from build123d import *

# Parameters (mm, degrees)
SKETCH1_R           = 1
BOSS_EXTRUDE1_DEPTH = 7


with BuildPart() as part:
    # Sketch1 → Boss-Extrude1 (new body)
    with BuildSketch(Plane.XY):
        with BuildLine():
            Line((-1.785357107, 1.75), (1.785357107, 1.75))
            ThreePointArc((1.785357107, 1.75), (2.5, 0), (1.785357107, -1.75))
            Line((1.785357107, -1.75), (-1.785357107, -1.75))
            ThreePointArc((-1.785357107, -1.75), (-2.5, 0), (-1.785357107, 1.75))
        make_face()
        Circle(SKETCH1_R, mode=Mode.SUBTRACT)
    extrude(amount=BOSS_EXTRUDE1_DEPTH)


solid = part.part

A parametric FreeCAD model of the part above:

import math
import FreeCAD as App
import Part
import Sketcher
from FreeCAD import Vector

doc = App.newDocument("Part")
body = doc.addObject("PartDesign::Body", "Body")

# Sketch on XY plane
sketch1 = doc.addObject("Sketcher::SketchObject", "Sketch")
body.addObject(sketch1)
sketch1.AttachmentSupport = (doc.XY_Plane, [""])
sketch1.MapMode = "FlatFace"
sketch1.addGeometry([
    Part.LineSegment(Vector(1.8, 1.8, 0), Vector(-1.8, 1.8, 0)),  # 0
    Part.ArcOfCircle(Part.Circle(Vector(0, 0, 0), Vector(0, 0, 1), 2.5), math.radians(136), math.radians(224)),  # 1
    Part.LineSegment(Vector(-1.8, -1.8, 0), Vector(1.8, -1.8, 0)),  # 2
    Part.ArcOfCircle(Part.Circle(Vector(0, 0, 0), Vector(0, 0, 1), 2.5), math.radians(-44), math.radians(44)),  # 3
    Part.Circle(Vector(0, 0, 0), Vector(0, 0, 1), 1),  # 4
], False)
sketch1.addConstraint([
    Sketcher.Constraint("Coincident", 0, 2, 1, 1),
    Sketcher.Constraint("Coincident", 1, 2, 2, 1),
    Sketcher.Constraint("Coincident", 2, 2, 3, 1),
    Sketcher.Constraint("Coincident", 3, 2, 0, 1),
    Sketcher.Constraint("Horizontal", 0),
    Sketcher.Constraint("Horizontal", 2),
    Sketcher.Constraint("Coincident", 1, 3, -1, 1),
    Sketcher.Constraint("Coincident", 3, 3, -1, 1),
    Sketcher.Constraint("Coincident", 4, 3, -1, 1),
    Sketcher.Constraint("Equal", 1, 3),
    Sketcher.Constraint("Vertical", 0, 2, 1, 2),
    Sketcher.Constraint("Diameter", 4, 2.0),
    Sketcher.Constraint("Radius", 1, 2.5),
    Sketcher.Constraint("DistanceY", 1, 2, 0, 2, 3.5),
])
pad1 = doc.addObject("PartDesign::Pad", "Pad")
body.addObject(pad1)
pad1.Profile = sketch1
pad1.Length = 7

doc.recompute()
